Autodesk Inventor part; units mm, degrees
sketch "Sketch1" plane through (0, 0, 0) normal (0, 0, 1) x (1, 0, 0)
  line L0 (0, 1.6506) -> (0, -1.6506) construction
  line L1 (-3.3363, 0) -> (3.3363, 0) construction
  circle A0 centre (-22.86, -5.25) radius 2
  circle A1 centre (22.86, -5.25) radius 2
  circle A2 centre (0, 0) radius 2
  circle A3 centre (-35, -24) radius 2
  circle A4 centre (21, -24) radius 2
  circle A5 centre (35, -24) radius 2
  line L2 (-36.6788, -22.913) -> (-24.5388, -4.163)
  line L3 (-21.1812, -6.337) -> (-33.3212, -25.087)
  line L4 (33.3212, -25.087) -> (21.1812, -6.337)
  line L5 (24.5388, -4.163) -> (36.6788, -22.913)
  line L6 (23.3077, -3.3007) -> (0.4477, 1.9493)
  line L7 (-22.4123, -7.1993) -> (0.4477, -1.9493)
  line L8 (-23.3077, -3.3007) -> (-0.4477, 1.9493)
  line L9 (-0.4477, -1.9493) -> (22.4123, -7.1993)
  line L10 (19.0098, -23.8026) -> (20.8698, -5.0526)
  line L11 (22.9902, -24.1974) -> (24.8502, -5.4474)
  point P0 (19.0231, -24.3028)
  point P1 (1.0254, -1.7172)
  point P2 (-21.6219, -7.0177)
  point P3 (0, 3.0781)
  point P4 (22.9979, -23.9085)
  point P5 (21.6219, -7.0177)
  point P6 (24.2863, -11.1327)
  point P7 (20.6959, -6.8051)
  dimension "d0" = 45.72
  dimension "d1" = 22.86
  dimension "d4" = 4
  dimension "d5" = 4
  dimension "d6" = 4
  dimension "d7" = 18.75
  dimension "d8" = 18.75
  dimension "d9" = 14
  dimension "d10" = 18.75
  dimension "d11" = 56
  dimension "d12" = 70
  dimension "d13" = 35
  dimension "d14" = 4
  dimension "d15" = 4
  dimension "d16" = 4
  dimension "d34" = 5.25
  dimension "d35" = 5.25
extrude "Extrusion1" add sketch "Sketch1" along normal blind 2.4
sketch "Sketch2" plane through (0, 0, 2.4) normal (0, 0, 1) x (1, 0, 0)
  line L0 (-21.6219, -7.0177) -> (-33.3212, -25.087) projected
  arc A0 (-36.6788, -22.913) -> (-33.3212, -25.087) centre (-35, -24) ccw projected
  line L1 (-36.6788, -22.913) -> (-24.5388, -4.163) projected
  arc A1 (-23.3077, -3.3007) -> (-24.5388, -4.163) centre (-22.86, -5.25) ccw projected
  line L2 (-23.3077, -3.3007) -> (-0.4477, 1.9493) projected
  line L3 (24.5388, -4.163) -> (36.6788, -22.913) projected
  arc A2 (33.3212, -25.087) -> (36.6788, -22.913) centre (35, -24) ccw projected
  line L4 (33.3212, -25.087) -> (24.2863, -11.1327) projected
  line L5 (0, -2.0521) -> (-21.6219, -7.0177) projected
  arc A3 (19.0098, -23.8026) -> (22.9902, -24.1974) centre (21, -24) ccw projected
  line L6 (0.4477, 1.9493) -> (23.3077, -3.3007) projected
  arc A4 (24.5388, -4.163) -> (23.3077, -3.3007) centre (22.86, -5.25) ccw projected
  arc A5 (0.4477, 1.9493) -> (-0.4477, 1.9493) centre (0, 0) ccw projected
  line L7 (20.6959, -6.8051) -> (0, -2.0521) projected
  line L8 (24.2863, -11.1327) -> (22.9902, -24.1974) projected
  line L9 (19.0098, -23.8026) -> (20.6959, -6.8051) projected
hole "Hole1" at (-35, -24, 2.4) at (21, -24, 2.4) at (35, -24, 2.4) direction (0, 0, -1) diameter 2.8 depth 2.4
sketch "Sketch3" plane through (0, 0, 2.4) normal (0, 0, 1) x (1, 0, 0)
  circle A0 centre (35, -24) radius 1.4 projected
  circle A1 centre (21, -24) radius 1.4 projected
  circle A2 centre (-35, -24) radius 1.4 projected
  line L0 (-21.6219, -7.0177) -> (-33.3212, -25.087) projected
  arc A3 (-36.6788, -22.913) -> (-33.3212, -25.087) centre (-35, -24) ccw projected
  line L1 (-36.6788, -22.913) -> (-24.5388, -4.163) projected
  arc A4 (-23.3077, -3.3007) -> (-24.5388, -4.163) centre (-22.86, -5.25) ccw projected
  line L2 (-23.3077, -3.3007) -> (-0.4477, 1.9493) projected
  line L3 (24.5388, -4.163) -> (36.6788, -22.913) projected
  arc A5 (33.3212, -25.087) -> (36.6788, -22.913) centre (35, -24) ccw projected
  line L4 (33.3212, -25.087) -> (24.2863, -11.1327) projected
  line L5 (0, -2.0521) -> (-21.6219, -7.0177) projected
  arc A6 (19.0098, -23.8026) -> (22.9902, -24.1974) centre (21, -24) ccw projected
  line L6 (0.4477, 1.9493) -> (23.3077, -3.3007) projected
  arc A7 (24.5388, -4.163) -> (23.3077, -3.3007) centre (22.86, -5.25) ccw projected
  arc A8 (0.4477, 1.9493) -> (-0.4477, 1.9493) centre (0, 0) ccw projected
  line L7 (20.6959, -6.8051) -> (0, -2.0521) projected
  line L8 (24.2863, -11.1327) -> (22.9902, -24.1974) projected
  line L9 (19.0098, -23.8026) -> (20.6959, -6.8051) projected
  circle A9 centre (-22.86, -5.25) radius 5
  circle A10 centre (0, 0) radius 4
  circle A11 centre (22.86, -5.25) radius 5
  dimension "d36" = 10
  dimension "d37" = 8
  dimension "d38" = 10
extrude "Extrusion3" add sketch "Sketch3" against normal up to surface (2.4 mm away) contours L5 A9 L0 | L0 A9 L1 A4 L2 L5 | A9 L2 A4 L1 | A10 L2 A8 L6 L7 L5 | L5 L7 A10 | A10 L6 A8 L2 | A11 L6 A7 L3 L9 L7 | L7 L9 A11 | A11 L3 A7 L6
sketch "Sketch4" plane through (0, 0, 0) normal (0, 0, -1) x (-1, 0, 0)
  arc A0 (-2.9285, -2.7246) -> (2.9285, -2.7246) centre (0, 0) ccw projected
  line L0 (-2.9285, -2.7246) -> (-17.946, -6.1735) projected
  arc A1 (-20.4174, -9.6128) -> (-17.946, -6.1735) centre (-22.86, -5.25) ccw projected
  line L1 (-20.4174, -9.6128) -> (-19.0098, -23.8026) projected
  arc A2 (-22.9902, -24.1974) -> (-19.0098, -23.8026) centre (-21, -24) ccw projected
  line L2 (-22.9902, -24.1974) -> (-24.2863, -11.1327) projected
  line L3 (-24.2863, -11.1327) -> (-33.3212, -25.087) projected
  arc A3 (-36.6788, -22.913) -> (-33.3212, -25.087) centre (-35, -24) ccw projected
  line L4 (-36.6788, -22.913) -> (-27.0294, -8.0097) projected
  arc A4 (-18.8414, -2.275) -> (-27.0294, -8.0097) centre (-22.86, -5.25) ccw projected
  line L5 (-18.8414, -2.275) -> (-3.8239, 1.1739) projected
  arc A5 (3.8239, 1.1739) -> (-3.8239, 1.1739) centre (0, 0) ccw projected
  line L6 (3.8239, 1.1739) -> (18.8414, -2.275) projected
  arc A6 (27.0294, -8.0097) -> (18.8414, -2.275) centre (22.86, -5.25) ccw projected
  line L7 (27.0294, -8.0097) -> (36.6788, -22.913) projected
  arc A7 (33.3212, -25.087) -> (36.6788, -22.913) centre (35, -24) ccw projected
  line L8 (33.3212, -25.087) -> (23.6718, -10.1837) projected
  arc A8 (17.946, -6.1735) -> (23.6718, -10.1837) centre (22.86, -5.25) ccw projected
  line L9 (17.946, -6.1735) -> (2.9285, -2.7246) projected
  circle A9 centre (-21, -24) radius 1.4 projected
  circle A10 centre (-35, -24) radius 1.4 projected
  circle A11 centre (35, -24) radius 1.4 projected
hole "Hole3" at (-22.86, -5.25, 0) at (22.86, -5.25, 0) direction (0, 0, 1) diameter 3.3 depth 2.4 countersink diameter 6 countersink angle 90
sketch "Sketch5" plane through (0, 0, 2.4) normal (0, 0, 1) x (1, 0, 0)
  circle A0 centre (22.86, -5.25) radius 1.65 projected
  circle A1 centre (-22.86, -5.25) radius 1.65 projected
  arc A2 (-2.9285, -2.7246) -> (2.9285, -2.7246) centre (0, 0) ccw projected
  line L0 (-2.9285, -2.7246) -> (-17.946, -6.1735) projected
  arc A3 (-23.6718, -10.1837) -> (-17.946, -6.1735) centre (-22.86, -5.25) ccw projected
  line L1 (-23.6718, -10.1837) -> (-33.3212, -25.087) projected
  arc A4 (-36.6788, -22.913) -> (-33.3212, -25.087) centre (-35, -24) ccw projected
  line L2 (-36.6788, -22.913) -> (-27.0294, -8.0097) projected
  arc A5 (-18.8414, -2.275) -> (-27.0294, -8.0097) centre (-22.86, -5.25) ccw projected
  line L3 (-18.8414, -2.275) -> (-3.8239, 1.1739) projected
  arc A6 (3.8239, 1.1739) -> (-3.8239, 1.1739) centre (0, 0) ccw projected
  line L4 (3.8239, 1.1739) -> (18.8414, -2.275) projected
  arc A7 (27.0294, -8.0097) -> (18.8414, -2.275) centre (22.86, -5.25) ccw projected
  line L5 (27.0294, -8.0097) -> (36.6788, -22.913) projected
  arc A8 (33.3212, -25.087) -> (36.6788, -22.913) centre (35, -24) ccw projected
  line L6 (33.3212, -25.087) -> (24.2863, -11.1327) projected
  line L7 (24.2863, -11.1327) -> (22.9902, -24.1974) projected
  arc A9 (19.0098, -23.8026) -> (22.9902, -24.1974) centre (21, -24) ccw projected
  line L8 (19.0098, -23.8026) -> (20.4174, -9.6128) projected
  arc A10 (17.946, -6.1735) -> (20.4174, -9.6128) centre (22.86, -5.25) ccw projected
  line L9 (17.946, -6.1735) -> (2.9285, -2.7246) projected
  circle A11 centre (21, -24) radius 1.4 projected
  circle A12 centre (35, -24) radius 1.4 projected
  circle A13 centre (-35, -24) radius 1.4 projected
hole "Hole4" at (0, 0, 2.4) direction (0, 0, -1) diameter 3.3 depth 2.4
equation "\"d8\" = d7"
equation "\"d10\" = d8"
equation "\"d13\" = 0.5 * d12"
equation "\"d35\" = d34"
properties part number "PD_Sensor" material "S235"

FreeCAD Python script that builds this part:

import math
import FreeCAD as App
import Part
import Sketcher
from FreeCAD import Vector
Q = App.Units.Quantity

doc = App.newDocument("Part")
body = doc.addObject("PartDesign::Body", "Body")

# Sketch on XY plane
sketch1 = doc.addObject("Sketcher::SketchObject", "Sketch")
body.addObject(sketch1)
sketch1.AttachmentSupport = (doc.XY_Plane, [""])
sketch1.MapMode = "FlatFace"
sketch1.addGeometry([
    Part.ArcOfCircle(Part.Circle(Vector(-22.9, -5.2, 0), Vector(0, 0, 1), 2), math.radians(103), math.radians(147)),  # 0
    Part.LineSegment(Vector(-24.5, -4.2, 0), Vector(-36.7, -22.9, 0)),  # 1
    Part.ArcOfCircle(Part.Circle(Vector(-35, -24, 0), Vector(0, 0, 1), 2), math.radians(147), math.radians(327)),  # 2
    Part.LineSegment(Vector(-33.3, -25.1, 0), Vector(-21.6, -7, 0)),  # 3
    Part.LineSegment(Vector(-21.6, -7, 0), Vector(0, -2.1, 0)),  # 4
    Part.LineSegment(Vector(0, -2.1, 0), Vector(20.7, -6.8, 0)),  # 5
    Part.LineSegment(Vector(20.7, -6.8, 0), Vector(19, -23.8, 0)),  # 6
    Part.ArcOfCircle(Part.Circle(Vector(21, -24, 0), Vector(0, 0, 1), 2), math.radians(174), math.radians(354)),  # 7
    Part.LineSegment(Vector(23, -24.2, 0), Vector(24.3, -11.1, 0)),  # 8
    Part.LineSegment(Vector(24.3, -11.1, 0), Vector(33.3, -25.1, 0)),  # 9
    Part.ArcOfCircle(Part.Circle(Vector(35, -24, 0), Vector(0, 0, 1), 2), math.radians(-147), math.radians(33)),  # 10
    Part.LineSegment(Vector(36.7, -22.9, 0), Vector(24.5, -4.2, 0)),  # 11
    Part.ArcOfCircle(Part.Circle(Vector(22.9, -5.2, 0), Vector(0, 0, 1), 2), math.radians(33), math.radians(77)),  # 12
    Part.LineSegment(Vector(23.3, -3.3, 0), Vector(0.4, 1.9, 0)),  # 13
    Part.ArcOfCircle(Part.Circle(Vector(0, 0, 0), Vector(0, 0, 1), 2), math.radians(77), math.radians(103)),  # 14
    Part.LineSegment(Vector(-0.4, 1.9, 0), Vector(-23.3, -3.3, 0)),  # 15
], False)
sketch1.addConstraint([
    Sketcher.Constraint("Tangent", 0, 2, 1, 1),
    Sketcher.Constraint("Tangent", 1, 2, 2, 1),
    Sketcher.Constraint("Tangent", 2, 2, 3, 1),
    Sketcher.Constraint("Coincident", 3, 2, 4, 1),
    Sketcher.Constraint("Coincident", 4, 2, 5, 1),
    Sketcher.Constraint("Coincident", 5, 2, 6, 1),
    Sketcher.Constraint("Tangent", 6, 2, 7, 1),
    Sketcher.Constraint("Tangent", 7, 2, 8, 1),
    Sketcher.Constraint("Coincident", 8, 2, 9, 1),
    Sketcher.Constraint("Tangent", 9, 2, 10, 1),
    Sketcher.Constraint("Tangent", 10, 2, 11, 1),
    Sketcher.Constraint("Tangent", 11, 2, 12, 1),
    Sketcher.Constraint("Tangent", 12, 2, 13, 1),
    Sketcher.Constraint("Tangent", 13, 2, 14, 1),
    Sketcher.Constraint("Tangent", 14, 2, 15, 1),
    Sketcher.Constraint("Tangent", 15, 2, 0, 1),
    Sketcher.Constraint("Coincident", 14, 3, -1, 1),
    Sketcher.Constraint("Equal", 0, 2),
    Sketcher.Constraint("Equal", 2, 7),
    Sketcher.Constraint("Equal", 7, 10),
    Sketcher.Constraint("Equal", 10, 12),
    Sketcher.Constraint("Equal", 12, 14),
    Sketcher.Constraint("Symmetric", 2, 3, 10, 3, -2),
    Sketcher.Constraint("Symmetric", 0, 3, 12, 3, -2),
    Sketcher.Constraint("PointOnObject", 4, 2, -2),
    Sketcher.Constraint("Parallel", 1, 3),
    Sketcher.Constraint("Parallel", 6, 8),
    Sketcher.Constraint("Parallel", 9, 11),
    Sketcher.Constraint("Parallel", 5, 13),
    Sketcher.Constraint("Parallel", 4, 15),
    Sketcher.Constraint("Horizontal", 2, 3, 7, 3),
    Sketcher.Constraint("Radius", 0, Q("2 mm")),
    Sketcher.Constraint("DistanceX", 2, 3, -1, 1, Q("35 mm")),
    Sketcher.Constraint("DistanceX", 2, 3, 7, 3, Q("56 mm")),
    Sketcher.Constraint("DistanceX", 0, 3, -1, 1, Q("22.86 mm")),
    Sketcher.Constraint("DistanceY", 0, 3, -1, 1, Q("5.25 mm")),
    Sketcher.Constraint("DistanceY", 2, 3, 0, 3, Q("18.75 mm")),
    Sketcher.Constraint("DistanceY", 6, 2, 8, 2, Q("12.67 mm")),
    Sketcher.Constraint("Distance", 3, Q("21.526 mm")),
])
pad1 = doc.addObject("PartDesign::Pad", "Pad")
body.addObject(pad1)
pad1.Profile = sketch1
pad1.Length = 2.4

# Sketch on XY plane
sketch2 = doc.addObject("Sketcher::SketchObject", "Sketch001")
body.addObject(sketch2)
sketch2.AttachmentSupport = (doc.XY_Plane, [""])
sketch2.MapMode = "FlatFace"
sketch2.AttachmentOffset = App.Placement(Vector(0, 0, 2.4), App.Rotation())
sketch2.addGeometry([
    Part.Circle(Vector(-35, -24, 0), Vector(0, 0, 1), 1.4),
    Part.Circle(Vector(21, -24, 0), Vector(0, 0, 1), 1.4),
    Part.Circle(Vector(35, -24, 0), Vector(0, 0, 1), 1.4),
], False)
sketch2.addConstraint([
    Sketcher.Constraint("Equal", 0, 1),
    Sketcher.Constraint("Equal", 1, 2),
    Sketcher.Constraint("Symmetric", 0, 3, 2, 3, -2),
    Sketcher.Constraint("Horizontal", 0, 3, 1, 3),
    Sketcher.Constraint("Diameter", 0, Q("2.8 mm")),
    Sketcher.Constraint("DistanceX", 0, 3, -1, 1, Q("35 mm")),
    Sketcher.Constraint("DistanceY", 0, 3, -1, 1, Q("24 mm")),
    Sketcher.Constraint("DistanceX", -1, 1, 1, 3, Q("21 mm")),
])
doc.recompute()
hole = doc.addObject("PartDesign::Hole", "Hole")
body.addObject(hole)
hole.Profile = sketch2
hole.ThreadType = "None"
hole.Diameter = 2.8
hole.DepthType = "Dimension"
hole.Depth = 2.4
hole.DrillPoint = "Flat"

# Sketch on XY plane
sketch3 = doc.addObject("Sketcher::SketchObject", "Sketch002")
body.addObject(sketch3)
sketch3.AttachmentSupport = (doc.XY_Plane, [""])
sketch3.MapMode = "FlatFace"
sketch3.AttachmentOffset = App.Placement(Vector(0, 0, 2.4), App.Rotation())
sketch3.addGeometry([
    Part.Circle(Vector(-22.9, -5.2, 0), Vector(0, 0, 1), 5),
    Part.Circle(Vector(0, 0, 0), Vector(0, 0, 1), 4),
    Part.Circle(Vector(22.9, -5.2, 0), Vector(0, 0, 1), 5),
], False)
sketch3.addConstraint([
    Sketcher.Constraint("Coincident", 1, 3, -1, 1),
    Sketcher.Constraint("Equal", 0, 2),
    Sketcher.Constraint("Symmetric", 0, 3, 2, 3, -2),
    Sketcher.Constraint("Diameter", 0, Q("10 mm")),
    Sketcher.Constraint("Diameter", 1, Q("8 mm")),
    Sketcher.Constraint("DistanceX", 0, 3, -1, 1, Q("22.86 mm")),
    Sketcher.Constraint("DistanceY", 0, 3, -1, 1, Q("5.25 mm")),
])
pad2 = doc.addObject("PartDesign::Pad", "Pad001")
body.addObject(pad2)
pad2.Profile = sketch3
pad2.Length = 2.4
pad2.Reversed = True

# Sketch on XY plane
sketch4 = doc.addObject("Sketcher::SketchObject", "Sketch003")
body.addObject(sketch4)
sketch4.AttachmentSupport = (doc.XY_Plane, [""])
sketch4.MapMode = "FlatFace"
sketch4.addGeometry([
    Part.Circle(Vector(-22.9, -5.2, 0), Vector(0, 0, 1), 1.6),
    Part.Circle(Vector(22.9, -5.2, 0), Vector(0, 0, 1), 1.6),
], False)
sketch4.addConstraint([
    Sketcher.Constraint("Equal", 0, 1),
    Sketcher.Constraint("Symmetric", 0, 3, 1, 3, -2),
    Sketcher.Constraint("Diameter", 0, Q("3.3 mm")),
    Sketcher.Constraint("DistanceX", 0, 3, -1, 1, Q("22.86 mm")),
    Sketcher.Constraint("DistanceY", 0, 3, -1, 1, Q("5.25 mm")),
])
doc.recompute()
hole2 = doc.addObject("PartDesign::Hole", "Hole001")
body.addObject(hole2)
hole2.Profile = sketch4
hole2.ThreadType = "None"
hole2.Diameter = 3.3
hole2.DepthType = "Dimension"
hole2.Depth = 2.4
hole2.DrillPoint = "Flat"
hole2.HoleCutType = "Countersink"
hole2.HoleCutDiameter = 6
hole2.HoleCutCountersinkAngle = 90
hole2.Reversed = True

# Sketch on XY plane
sketch5 = doc.addObject("Sketcher::SketchObject", "Sketch004")
body.addObject(sketch5)
sketch5.AttachmentSupport = (doc.XY_Plane, [""])
sketch5.MapMode = "FlatFace"
sketch5.AttachmentOffset = App.Placement(Vector(0, 0, 2.4), App.Rotation())
sketch5.addGeometry(Part.Circle(Vector(0, 0, 0), Vector(0, 0, 1), 1.6), False)
sketch5.addConstraint([
    Sketcher.Constraint("Coincident", 0, 3, -1, 1),
    Sketcher.Constraint("Diameter", 0, Q("3.3 mm")),
])
doc.recompute()
hole3 = doc.addObject("PartDesign::Hole", "Hole002")
body.addObject(hole3)
hole3.Profile = sketch5
hole3.ThreadType = "None"
hole3.Diameter = 3.3
hole3.DepthType = "Dimension"
hole3.Depth = 2.4
hole3.DrillPoint = "Flat"

doc.recompute()
